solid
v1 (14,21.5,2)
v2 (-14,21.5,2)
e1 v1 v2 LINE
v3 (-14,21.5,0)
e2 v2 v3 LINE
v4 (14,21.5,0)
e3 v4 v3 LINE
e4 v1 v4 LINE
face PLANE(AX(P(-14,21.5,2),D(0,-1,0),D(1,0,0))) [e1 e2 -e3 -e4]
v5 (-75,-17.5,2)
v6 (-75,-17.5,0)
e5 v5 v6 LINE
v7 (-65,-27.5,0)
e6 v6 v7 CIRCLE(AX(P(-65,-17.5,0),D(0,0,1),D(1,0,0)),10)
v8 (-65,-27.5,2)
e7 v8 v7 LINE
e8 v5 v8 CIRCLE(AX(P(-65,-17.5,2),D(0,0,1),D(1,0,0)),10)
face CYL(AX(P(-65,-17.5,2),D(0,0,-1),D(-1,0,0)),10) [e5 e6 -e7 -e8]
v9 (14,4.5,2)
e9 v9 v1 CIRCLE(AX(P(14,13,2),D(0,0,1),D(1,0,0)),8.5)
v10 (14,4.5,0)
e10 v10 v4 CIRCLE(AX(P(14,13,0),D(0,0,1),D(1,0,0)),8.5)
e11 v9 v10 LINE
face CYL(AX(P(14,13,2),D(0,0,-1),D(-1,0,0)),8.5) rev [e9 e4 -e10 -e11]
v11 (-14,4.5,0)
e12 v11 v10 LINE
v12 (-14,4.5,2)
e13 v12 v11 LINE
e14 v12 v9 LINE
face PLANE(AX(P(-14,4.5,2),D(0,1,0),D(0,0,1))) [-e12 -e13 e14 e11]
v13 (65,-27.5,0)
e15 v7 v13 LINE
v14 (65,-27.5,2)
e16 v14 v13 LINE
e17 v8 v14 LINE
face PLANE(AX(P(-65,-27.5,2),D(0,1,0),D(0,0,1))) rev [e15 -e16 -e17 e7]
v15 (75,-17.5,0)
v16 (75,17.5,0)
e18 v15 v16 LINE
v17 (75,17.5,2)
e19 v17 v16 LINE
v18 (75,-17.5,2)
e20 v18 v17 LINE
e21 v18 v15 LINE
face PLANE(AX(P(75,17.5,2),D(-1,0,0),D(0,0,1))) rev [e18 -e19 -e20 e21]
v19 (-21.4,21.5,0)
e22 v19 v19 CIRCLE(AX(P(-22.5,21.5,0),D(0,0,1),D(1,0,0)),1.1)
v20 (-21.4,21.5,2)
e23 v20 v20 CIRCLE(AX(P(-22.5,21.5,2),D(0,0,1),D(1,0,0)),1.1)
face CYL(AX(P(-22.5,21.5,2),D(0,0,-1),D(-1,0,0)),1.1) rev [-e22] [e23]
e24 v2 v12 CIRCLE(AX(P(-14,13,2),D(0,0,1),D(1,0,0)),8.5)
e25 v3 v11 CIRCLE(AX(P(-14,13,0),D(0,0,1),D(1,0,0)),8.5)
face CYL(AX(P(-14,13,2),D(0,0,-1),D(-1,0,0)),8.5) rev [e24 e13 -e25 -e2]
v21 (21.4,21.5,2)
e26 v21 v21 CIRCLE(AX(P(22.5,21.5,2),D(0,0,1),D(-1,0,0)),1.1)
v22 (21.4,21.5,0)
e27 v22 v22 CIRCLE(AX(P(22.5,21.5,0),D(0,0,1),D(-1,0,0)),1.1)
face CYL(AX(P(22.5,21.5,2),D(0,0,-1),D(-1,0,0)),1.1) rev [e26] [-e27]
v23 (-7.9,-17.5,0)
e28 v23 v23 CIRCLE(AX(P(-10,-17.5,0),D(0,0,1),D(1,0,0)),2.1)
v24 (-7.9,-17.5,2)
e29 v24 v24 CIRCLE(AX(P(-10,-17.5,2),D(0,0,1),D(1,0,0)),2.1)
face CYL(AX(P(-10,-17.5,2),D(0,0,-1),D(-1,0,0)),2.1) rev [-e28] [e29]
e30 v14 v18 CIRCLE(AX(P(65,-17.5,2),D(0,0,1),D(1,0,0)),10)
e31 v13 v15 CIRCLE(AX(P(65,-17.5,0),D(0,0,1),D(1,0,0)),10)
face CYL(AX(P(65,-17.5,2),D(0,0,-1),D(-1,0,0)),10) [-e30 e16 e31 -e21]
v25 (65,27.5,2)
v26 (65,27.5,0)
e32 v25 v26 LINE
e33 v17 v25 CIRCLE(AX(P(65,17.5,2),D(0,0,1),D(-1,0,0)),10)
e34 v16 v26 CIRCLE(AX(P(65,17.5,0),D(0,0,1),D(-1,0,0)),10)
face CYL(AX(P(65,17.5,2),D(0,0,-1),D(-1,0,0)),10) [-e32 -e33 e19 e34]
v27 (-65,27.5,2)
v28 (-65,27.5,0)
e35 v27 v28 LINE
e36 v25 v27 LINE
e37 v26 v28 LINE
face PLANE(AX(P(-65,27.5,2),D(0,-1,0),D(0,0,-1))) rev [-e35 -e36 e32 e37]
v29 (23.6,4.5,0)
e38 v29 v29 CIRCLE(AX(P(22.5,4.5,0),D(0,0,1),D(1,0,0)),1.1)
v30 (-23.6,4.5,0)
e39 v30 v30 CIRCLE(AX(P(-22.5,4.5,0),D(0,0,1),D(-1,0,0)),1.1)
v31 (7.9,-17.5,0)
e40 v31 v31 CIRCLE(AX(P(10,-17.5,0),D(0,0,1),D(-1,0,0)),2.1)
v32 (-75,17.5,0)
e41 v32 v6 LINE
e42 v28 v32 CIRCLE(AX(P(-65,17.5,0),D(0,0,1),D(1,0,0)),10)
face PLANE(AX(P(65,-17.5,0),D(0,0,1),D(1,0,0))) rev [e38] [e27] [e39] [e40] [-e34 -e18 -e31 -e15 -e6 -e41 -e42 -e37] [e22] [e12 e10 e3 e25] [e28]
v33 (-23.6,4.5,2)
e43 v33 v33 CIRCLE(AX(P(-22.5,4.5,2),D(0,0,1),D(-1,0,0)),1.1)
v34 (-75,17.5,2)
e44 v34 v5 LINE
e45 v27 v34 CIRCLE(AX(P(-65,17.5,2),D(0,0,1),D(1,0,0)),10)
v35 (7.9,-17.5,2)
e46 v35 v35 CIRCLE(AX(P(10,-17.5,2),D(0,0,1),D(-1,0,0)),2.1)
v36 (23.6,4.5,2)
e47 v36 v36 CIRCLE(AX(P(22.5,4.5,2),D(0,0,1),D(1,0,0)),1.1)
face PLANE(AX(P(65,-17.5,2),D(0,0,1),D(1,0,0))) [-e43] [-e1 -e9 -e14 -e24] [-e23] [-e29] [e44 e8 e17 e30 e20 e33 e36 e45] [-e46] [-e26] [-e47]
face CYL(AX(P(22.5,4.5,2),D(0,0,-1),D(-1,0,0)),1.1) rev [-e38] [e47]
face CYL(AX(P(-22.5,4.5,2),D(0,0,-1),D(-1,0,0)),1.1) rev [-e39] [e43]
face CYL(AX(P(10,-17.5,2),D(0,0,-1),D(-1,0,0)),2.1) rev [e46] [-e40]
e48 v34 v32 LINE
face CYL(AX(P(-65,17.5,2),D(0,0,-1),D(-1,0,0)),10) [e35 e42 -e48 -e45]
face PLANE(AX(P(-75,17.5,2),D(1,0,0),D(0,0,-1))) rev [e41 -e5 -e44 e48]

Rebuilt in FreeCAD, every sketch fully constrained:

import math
import FreeCAD as App
import Part
import Sketcher

V = App.Vector

doc = App.newDocument("Part")
body = doc.addObject("PartDesign::Body", "Body")

# Sketch on XY plane
sketch1 = doc.addObject("Sketcher::SketchObject", "Sketch")
body.addObject(sketch1)
sketch1.AttachmentSupport = (doc.XY_Plane, [""])
sketch1.MapMode = "FlatFace"
sketch1.addGeometry(Part.LineSegment(V(65, 27.5, 0), V(-65, 27.5, 0)), False)
sketch1.addGeometry(Part.ArcOfCircle(Part.Circle(V(-65, 17.5, 0), V(0, 0, 1), 10), math.radians(90), math.radians(180)), False)
sketch1.addGeometry(Part.LineSegment(V(-75, 17.5, 0), V(-75, -17.5, 0)), False)
sketch1.addGeometry(Part.ArcOfCircle(Part.Circle(V(-65, -17.5, 0), V(0, 0, 1), 10), math.radians(180), math.radians(270)), False)
sketch1.addGeometry(Part.LineSegment(V(-65, -27.5, 0), V(65, -27.5, 0)), False)
sketch1.addGeometry(Part.ArcOfCircle(Part.Circle(V(65, -17.5, 0), V(0, 0, 1), 10), math.radians(-90), math.radians(0)), False)
sketch1.addGeometry(Part.LineSegment(V(75, -17.5, 0), V(75, 17.5, 0)), False)
sketch1.addGeometry(Part.ArcOfCircle(Part.Circle(V(65, 17.5, 0), V(0, 0, 1), 10), math.radians(0), math.radians(90)), False)
sketch1.addGeometry(Part.Circle(V(10, -17.5, 0), V(0, 0, 1), 2.1), False)
sketch1.addGeometry(Part.Circle(V(-10, -17.5, 0), V(0, 0, 1), 2.1), False)
sketch1.addGeometry(Part.Circle(V(22.5, 4.5, 0), V(0, 0, 1), 1.1), False)
sketch1.addGeometry(Part.Circle(V(22.5, 21.5, 0), V(0, 0, 1), 1.1), False)
sketch1.addGeometry(Part.Circle(V(-22.5, 4.5, 0), V(0, 0, 1), 1.1), False)
sketch1.addGeometry(Part.LineSegment(V(-14, 21.5, 0), V(14, 21.5, 0)), False)
sketch1.addGeometry(Part.ArcOfCircle(Part.Circle(V(14, 13, 0), V(0, 0, 1), 8.5), math.radians(-90), math.radians(90)), False)
sketch1.addGeometry(Part.LineSegment(V(14, 4.5, 0), V(-14, 4.5, 0)), False)
sketch1.addGeometry(Part.ArcOfCircle(Part.Circle(V(-14, 13, 0), V(0, 0, 1), 8.5), math.radians(90), math.radians(270)), False)
sketch1.addGeometry(Part.Circle(V(-22.5, 21.5, 0), V(0, 0, 1), 1.1), False)
sketch1.addConstraint(Sketcher.Constraint("Tangent", 0, 2, 1, 1))
sketch1.addConstraint(Sketcher.Constraint("Tangent", 1, 2, 2, 1))
sketch1.addConstraint(Sketcher.Constraint("Tangent", 2, 2, 3, 1))
sketch1.addConstraint(Sketcher.Constraint("Tangent", 3, 2, 4, 1))
sketch1.addConstraint(Sketcher.Constraint("Tangent", 4, 2, 5, 1))
sketch1.addConstraint(Sketcher.Constraint("Tangent", 5, 2, 6, 1))
sketch1.addConstraint(Sketcher.Constraint("Tangent", 6, 2, 7, 1))
sketch1.addConstraint(Sketcher.Constraint("Tangent", 7, 2, 0, 1))
sketch1.addConstraint(Sketcher.Constraint("Tangent", 13, 2, 14, 2))
sketch1.addConstraint(Sketcher.Constraint("Tangent", 14, 1, 15, 1))
sketch1.addConstraint(Sketcher.Constraint("Tangent", 15, 2, 16, 2))
sketch1.addConstraint(Sketcher.Constraint("Tangent", 16, 1, 13, 1))
sketch1.addConstraint(Sketcher.Constraint("Horizontal", 0))
sketch1.addConstraint(Sketcher.Constraint("Vertical", 2))
sketch1.addConstraint(Sketcher.Constraint("Horizontal", 4))
sketch1.addConstraint(Sketcher.Constraint("Vertical", 6))
sketch1.addConstraint(Sketcher.Constraint("Horizontal", 13))
sketch1.addConstraint(Sketcher.Constraint("Horizontal", 15))
sketch1.addConstraint(Sketcher.Constraint("Equal", 1, 3))
sketch1.addConstraint(Sketcher.Constraint("Equal", 3, 5))
sketch1.addConstraint(Sketcher.Constraint("Equal", 5, 7))
sketch1.addConstraint(Sketcher.Constraint("Equal", 8, 9))
sketch1.addConstraint(Sketcher.Constraint("Equal", 10, 11))
sketch1.addConstraint(Sketcher.Constraint("Equal", 11, 12))
sketch1.addConstraint(Sketcher.Constraint("Equal", 12, 17))
sketch1.addConstraint(Sketcher.Constraint("Symmetric", 1, 3, 5, 3, -1, 1))
sketch1.addConstraint(Sketcher.Constraint("Symmetric", 8, 3, 9, 3, -2))
sketch1.addConstraint(Sketcher.Constraint("Symmetric", 10, 3, 12, 3, -2))
sketch1.addConstraint(Sketcher.Constraint("Symmetric", 11, 3, 17, 3, -2))
sketch1.addConstraint(Sketcher.Constraint("Horizontal", 5, 3, 8, 3))
sketch1.addConstraint(Sketcher.Constraint("Horizontal", 17, 3, 13, 2))
sketch1.addConstraint(Sketcher.Constraint("Horizontal", 12, 3, 14, 1))
sketch1.addConstraint(Sketcher.Constraint("Vertical", 10, 3, 11, 3))
sketch1.addConstraint(Sketcher.Constraint("Radius", 1, 10.0))
sketch1.addConstraint(Sketcher.Constraint("Diameter", 8, 4.2))
sketch1.addConstraint(Sketcher.Constraint("Diameter", 10, 2.2))
sketch1.addConstraint(Sketcher.Constraint("Radius", 14, 8.5))
sketch1.addConstraint(Sketcher.Constraint("DistanceX", 0, 2, 0, 1, 130.0))
sketch1.addConstraint(Sketcher.Constraint("DistanceX", 13, 1, 13, 2, 28.0))
sketch1.addConstraint(Sketcher.Constraint("DistanceY", 2, 2, 2, 1, 35.0))
sketch1.addConstraint(Sketcher.Constraint("DistanceX", -1, 1, 8, 3, 10.0))
sketch1.addConstraint(Sketcher.Constraint("DistanceX", -1, 1, 14, 3, 14.0))
sketch1.addConstraint(Sketcher.Constraint("DistanceY", -1, 1, 14, 3, 13.0))
sketch1.addConstraint(Sketcher.Constraint("DistanceX", 12, 3, 10, 3, 45.0))
pad1 = doc.addObject("PartDesign::Pad", "Pad")
body.addObject(pad1)
pad1.Profile = sketch1
pad1.Length = 2

doc.recompute()
